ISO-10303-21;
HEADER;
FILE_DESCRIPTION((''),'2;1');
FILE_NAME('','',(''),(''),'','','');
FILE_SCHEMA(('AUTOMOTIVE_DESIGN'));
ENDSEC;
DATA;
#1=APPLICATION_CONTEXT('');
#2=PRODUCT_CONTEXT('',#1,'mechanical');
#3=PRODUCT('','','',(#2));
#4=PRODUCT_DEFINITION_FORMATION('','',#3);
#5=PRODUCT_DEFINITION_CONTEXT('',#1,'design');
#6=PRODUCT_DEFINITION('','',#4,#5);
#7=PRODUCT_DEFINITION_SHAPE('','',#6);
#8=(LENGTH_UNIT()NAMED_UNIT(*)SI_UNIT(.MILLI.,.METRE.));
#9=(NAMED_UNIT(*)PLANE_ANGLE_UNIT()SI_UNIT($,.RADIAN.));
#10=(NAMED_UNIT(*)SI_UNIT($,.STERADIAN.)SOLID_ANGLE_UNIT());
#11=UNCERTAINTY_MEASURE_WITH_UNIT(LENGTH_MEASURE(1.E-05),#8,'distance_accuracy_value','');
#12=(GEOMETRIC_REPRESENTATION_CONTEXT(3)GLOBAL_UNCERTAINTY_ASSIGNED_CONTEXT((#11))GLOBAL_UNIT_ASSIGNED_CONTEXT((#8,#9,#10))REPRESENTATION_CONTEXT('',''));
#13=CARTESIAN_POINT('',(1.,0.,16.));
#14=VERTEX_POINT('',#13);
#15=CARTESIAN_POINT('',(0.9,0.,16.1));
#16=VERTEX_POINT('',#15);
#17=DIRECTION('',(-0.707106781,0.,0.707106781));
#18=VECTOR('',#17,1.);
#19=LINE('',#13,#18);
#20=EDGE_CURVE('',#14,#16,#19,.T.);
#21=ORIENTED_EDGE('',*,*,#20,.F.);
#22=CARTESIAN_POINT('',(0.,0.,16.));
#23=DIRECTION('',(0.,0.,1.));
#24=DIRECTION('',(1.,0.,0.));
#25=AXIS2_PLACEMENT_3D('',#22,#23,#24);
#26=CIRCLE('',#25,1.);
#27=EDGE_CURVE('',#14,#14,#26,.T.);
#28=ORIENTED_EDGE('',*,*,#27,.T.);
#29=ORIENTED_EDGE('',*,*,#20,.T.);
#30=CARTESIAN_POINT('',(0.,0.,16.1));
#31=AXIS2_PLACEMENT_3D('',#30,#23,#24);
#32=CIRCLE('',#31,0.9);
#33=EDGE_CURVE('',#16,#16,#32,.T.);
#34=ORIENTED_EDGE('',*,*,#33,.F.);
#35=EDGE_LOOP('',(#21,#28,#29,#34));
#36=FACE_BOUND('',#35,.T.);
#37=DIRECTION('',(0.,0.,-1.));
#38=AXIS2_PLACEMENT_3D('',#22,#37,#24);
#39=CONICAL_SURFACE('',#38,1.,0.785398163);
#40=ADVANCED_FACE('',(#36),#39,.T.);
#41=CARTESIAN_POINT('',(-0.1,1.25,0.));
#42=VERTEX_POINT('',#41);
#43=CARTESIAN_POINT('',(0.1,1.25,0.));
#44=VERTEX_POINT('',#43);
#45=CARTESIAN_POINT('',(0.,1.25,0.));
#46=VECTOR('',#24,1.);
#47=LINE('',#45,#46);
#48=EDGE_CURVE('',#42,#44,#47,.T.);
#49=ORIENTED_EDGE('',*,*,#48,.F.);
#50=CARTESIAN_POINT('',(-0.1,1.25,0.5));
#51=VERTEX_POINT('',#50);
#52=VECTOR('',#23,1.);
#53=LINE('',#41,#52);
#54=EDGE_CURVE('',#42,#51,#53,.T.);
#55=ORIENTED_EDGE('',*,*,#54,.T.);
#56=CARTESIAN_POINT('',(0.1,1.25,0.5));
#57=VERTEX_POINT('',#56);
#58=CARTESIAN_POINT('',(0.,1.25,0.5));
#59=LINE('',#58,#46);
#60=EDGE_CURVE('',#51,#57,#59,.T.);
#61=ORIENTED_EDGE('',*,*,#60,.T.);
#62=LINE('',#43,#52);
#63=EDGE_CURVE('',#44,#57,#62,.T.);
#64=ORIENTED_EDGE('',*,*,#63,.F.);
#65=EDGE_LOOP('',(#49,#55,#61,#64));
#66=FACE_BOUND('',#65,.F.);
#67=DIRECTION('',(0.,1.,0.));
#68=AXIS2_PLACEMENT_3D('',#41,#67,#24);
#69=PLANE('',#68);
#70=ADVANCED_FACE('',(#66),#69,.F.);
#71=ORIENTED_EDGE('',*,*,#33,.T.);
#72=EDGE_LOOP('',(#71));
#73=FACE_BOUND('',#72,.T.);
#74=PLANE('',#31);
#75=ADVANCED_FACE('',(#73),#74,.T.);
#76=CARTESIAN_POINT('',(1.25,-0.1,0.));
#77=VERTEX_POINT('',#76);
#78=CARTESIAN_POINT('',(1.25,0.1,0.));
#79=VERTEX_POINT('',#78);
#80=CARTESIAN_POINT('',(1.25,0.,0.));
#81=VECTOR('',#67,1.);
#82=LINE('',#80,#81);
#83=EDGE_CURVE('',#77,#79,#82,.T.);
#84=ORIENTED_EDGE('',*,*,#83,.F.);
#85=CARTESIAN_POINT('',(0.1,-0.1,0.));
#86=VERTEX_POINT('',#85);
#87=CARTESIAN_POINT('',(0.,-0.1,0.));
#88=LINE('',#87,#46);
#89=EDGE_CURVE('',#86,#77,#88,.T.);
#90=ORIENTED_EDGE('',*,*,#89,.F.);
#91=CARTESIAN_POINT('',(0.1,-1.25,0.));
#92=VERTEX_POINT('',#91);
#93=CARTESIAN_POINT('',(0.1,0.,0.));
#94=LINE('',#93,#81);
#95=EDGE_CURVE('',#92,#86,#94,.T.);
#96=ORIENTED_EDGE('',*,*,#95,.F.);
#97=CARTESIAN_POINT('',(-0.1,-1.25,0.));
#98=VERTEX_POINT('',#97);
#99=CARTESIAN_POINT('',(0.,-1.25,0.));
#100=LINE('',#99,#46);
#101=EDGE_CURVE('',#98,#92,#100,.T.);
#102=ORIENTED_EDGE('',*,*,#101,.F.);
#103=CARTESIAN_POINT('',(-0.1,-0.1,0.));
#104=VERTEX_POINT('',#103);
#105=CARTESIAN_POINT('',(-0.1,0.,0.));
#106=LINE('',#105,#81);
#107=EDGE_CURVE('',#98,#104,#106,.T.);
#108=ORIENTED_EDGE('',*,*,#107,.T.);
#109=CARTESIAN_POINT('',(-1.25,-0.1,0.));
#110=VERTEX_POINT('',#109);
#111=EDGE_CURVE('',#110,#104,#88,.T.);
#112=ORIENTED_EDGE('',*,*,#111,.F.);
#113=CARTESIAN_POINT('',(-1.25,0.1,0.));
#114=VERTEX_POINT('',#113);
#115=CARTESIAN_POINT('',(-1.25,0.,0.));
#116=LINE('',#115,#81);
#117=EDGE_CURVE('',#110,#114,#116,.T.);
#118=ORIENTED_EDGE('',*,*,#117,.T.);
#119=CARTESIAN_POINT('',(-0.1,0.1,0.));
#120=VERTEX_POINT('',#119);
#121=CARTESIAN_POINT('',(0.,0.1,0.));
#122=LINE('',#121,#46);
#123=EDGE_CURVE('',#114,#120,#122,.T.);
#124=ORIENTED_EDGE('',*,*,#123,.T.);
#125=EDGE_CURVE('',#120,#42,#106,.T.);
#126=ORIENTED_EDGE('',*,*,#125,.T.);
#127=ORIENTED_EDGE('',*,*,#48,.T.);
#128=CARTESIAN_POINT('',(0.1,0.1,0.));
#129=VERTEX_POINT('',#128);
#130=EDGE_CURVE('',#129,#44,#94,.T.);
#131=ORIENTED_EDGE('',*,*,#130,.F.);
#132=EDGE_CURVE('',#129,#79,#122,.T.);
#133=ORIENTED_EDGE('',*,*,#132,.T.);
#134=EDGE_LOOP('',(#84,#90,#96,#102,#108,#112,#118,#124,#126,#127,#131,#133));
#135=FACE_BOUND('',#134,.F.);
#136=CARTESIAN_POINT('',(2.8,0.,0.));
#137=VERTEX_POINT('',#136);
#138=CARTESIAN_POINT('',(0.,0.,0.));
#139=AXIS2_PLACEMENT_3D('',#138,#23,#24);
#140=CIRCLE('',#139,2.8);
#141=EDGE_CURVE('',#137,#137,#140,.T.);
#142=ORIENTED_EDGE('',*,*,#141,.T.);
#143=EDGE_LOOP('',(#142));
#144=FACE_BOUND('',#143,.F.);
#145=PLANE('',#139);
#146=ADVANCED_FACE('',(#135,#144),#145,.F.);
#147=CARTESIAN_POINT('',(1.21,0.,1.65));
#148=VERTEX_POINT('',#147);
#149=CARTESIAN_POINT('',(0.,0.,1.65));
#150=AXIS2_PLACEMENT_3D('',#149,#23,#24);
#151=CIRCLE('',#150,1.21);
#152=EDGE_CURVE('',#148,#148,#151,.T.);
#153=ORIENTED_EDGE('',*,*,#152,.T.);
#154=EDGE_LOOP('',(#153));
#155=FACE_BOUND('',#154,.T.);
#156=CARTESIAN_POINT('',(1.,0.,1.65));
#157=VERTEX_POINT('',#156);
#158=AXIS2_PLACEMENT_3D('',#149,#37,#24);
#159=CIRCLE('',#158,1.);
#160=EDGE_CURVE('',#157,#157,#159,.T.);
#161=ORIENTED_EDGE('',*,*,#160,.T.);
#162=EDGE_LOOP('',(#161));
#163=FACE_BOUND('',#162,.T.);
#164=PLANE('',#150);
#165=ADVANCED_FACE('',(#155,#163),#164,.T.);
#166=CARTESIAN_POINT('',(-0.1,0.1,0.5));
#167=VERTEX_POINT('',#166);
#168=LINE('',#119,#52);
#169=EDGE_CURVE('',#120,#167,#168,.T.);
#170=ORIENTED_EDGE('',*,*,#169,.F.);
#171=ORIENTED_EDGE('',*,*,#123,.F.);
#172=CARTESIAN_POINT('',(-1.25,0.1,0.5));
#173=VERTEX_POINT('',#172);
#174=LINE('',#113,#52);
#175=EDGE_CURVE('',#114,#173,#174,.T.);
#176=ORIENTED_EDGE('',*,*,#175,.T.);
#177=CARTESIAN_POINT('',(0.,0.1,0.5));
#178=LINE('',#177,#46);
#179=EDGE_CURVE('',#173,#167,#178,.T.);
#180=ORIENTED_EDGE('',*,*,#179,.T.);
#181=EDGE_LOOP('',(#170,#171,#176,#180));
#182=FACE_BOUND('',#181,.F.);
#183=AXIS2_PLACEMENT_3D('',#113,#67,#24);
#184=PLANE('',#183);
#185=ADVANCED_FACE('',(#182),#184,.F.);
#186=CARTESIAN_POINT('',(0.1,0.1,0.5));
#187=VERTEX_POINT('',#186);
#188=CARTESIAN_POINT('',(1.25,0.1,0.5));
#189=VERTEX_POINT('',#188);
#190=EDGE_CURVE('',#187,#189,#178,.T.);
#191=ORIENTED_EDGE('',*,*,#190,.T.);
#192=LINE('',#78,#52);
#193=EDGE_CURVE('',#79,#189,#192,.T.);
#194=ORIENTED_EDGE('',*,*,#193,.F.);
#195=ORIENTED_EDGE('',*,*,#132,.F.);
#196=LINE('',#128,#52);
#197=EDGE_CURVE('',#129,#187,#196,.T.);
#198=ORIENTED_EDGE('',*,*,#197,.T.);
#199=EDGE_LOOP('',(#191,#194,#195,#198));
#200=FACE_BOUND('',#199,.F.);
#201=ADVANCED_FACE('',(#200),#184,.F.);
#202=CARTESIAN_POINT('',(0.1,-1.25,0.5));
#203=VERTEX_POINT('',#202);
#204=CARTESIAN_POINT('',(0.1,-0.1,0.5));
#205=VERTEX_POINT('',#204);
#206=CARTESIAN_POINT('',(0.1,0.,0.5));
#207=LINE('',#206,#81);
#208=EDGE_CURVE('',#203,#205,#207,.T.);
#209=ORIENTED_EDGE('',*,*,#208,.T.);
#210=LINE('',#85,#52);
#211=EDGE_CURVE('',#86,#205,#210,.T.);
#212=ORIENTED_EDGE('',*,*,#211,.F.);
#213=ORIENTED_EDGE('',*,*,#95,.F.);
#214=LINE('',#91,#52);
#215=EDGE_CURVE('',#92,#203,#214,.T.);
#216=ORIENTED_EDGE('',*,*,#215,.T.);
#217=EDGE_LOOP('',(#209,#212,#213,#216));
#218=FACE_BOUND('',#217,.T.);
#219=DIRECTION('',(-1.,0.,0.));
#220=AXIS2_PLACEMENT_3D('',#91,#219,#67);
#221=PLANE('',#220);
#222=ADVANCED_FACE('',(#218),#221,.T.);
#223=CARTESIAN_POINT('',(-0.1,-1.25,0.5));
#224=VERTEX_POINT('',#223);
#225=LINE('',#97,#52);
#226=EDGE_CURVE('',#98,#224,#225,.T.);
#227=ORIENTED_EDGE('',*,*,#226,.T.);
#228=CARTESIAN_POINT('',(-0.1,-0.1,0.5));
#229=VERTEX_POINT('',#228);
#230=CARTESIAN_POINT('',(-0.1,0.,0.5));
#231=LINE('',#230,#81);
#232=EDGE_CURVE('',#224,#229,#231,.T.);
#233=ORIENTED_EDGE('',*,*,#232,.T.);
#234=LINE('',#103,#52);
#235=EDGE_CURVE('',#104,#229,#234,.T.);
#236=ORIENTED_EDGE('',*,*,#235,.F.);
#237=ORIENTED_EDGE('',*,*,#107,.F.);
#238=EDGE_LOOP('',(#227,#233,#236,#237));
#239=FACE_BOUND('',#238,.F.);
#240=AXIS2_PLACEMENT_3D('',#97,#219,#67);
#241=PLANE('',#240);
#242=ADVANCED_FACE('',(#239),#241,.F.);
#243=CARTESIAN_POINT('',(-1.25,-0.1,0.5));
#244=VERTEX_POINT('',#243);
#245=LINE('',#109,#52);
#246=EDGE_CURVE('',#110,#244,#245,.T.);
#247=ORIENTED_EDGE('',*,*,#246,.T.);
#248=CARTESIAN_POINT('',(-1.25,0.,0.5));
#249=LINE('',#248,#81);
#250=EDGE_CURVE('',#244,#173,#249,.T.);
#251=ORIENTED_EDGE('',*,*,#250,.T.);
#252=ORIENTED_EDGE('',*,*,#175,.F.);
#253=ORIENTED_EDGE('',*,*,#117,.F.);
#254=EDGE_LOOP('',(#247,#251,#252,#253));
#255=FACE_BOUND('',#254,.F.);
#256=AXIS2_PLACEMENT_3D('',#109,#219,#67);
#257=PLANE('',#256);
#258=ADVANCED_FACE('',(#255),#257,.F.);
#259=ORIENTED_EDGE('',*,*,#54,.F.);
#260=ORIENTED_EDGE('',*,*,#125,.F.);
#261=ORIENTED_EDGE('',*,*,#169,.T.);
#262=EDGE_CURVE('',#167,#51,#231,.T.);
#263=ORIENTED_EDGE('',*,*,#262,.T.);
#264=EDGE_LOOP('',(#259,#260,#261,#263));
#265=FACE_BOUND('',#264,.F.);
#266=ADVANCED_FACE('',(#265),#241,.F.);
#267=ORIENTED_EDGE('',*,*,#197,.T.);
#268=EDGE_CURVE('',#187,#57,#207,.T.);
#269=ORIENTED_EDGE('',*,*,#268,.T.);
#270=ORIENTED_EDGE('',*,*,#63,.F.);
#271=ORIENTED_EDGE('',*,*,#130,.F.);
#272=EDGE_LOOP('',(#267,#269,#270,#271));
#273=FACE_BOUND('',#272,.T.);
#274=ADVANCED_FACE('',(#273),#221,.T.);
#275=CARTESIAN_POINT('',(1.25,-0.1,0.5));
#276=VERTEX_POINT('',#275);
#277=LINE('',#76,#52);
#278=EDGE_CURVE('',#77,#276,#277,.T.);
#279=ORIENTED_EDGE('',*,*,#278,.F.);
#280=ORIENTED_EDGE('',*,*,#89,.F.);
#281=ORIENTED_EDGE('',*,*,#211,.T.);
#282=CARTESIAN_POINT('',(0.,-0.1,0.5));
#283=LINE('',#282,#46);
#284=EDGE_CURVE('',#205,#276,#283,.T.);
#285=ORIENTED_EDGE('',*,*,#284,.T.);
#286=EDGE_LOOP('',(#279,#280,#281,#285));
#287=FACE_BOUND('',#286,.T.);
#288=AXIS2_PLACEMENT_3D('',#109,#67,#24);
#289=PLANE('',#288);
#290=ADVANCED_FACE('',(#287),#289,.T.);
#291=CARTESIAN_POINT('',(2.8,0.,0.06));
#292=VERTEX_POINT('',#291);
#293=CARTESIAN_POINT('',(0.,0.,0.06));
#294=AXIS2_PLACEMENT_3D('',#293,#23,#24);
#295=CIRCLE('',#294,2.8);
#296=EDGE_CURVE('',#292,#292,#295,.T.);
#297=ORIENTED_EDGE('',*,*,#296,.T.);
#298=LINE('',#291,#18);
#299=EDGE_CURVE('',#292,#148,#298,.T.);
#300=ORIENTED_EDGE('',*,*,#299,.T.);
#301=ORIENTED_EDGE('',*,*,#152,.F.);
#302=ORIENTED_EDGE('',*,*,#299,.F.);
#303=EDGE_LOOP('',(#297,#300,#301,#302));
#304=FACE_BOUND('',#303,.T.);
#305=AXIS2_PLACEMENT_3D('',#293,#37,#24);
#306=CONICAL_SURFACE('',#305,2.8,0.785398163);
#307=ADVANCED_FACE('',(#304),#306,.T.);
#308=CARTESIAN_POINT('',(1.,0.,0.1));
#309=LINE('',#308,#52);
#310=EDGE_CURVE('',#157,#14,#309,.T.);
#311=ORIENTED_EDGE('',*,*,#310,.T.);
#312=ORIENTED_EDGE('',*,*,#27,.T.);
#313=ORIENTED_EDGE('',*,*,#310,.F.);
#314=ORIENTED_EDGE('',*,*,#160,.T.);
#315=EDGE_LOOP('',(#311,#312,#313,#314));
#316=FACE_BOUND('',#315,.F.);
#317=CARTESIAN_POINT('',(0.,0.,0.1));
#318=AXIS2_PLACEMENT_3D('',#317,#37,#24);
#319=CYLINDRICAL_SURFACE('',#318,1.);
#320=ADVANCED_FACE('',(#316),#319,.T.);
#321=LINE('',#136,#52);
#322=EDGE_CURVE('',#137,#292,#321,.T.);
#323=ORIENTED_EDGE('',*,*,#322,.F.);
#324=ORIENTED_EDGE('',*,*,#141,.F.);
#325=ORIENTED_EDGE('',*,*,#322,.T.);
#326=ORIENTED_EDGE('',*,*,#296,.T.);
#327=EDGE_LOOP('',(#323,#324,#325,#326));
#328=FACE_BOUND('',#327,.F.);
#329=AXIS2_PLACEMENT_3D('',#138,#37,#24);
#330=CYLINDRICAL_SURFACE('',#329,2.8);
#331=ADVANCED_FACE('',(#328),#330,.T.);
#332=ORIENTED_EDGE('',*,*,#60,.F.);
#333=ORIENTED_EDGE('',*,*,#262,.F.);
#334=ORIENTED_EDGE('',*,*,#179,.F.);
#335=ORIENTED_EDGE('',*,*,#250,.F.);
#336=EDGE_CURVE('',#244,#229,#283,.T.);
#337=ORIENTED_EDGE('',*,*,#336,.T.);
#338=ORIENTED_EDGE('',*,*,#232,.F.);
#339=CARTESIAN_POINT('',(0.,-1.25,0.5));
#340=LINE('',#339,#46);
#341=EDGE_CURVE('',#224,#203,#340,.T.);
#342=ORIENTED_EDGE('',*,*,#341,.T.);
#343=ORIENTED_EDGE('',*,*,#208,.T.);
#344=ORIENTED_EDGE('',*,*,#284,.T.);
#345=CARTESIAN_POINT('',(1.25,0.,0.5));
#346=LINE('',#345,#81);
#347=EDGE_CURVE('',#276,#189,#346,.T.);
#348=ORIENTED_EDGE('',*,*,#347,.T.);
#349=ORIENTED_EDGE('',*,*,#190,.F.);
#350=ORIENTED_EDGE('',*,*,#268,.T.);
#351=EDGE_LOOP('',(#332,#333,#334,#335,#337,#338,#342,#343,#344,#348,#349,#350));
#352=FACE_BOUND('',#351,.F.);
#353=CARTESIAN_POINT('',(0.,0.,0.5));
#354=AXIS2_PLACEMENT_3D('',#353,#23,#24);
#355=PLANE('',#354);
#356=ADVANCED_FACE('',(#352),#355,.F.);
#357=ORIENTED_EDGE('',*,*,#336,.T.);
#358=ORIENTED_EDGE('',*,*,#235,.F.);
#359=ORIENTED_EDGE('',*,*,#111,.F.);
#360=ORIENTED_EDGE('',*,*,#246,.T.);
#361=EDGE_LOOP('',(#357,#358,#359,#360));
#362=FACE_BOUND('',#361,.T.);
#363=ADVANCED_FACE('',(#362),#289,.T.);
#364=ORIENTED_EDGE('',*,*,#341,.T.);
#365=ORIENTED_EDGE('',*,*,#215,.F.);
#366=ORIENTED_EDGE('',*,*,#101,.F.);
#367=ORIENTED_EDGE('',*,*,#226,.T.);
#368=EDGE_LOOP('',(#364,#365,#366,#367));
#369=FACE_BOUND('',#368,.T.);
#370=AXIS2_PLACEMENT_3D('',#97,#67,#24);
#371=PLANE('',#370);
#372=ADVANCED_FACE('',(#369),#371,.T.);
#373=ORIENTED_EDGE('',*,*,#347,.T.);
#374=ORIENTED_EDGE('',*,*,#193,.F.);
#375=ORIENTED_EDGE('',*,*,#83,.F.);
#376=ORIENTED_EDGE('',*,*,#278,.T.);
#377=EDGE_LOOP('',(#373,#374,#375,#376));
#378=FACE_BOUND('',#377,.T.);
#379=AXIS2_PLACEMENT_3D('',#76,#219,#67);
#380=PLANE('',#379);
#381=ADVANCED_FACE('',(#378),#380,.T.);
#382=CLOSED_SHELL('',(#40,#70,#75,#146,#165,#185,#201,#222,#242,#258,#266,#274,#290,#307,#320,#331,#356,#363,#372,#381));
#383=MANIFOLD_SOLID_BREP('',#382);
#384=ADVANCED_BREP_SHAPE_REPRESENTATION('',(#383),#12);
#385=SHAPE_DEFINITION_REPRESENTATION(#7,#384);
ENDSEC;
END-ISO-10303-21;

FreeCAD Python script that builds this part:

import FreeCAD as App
import Part
import Sketcher
from FreeCAD import Vector
Q = App.Units.Quantity


def edges_at(feature, points):
    """Names of the edges that pass closest to the given points."""
    edges = feature.Shape.Edges
    near = lambda p: min(range(len(edges)), key=lambda i: edges[i].distToShape(Part.Vertex(*p))[0])
    return sorted({f"Edge{near(p) + 1}" for p in points})

doc = App.newDocument("Part")
body = doc.addObject("PartDesign::Body", "Body")

sketch1 = body.newObject("Sketcher::SketchObject", "Sketch")
sketch1.AttachmentSupport = (doc.getObject("XY_Plane"), [""])
sketch1.MapMode = "FlatFace"
sketch1.addGeometry(Part.LineSegment(Vector(-0.1, 1.25, 0), Vector(-0.1, -1.25, 0)), False)
sketch1.addGeometry(Part.LineSegment(Vector(-0.1, -1.25, 0), Vector(0.1, -1.25, 0)), False)
sketch1.addGeometry(Part.LineSegment(Vector(0.1, -1.25, 0), Vector(0.1, 1.25, 0)), False)
sketch1.addGeometry(Part.LineSegment(Vector(0.1, 1.25, 0), Vector(-0.1, 1.25, 0)), False)
sketch1.addConstraint(Sketcher.Constraint("Coincident", 0, 2, 1, 1))
sketch1.addConstraint(Sketcher.Constraint("Coincident", 1, 2, 2, 1))
sketch1.addConstraint(Sketcher.Constraint("Coincident", 2, 2, 3, 1))
sketch1.addConstraint(Sketcher.Constraint("Coincident", 3, 2, 0, 1))
sketch1.addConstraint(Sketcher.Constraint("Vertical", 0))
sketch1.addConstraint(Sketcher.Constraint("Horizontal", 1))
sketch1.addConstraint(Sketcher.Constraint("Vertical", 2))
sketch1.addConstraint(Sketcher.Constraint("Horizontal", 3))
sketch1.addConstraint(Sketcher.Constraint("Symmetric", 0, 2, 2, 2, -1, 1))
sketch1.addConstraint(Sketcher.Constraint("DistanceX", 1, 1, 1, 2, Q("0.2 mm")))
sketch1.addConstraint(Sketcher.Constraint("DistanceY", 0, 2, 0, 1, Q("2.5 mm")))
pad1 = body.newObject("PartDesign::Pad", "Pad")
pad1.Profile = sketch1
pad1.Length = 0.5
body2 = doc.addObject("PartDesign::Body", "Body001")

sketch2 = body2.newObject("Sketcher::SketchObject", "Sketch001")
sketch2.AttachmentSupport = (doc.getObject("XY_Plane001"), [""])
sketch2.MapMode = "FlatFace"
sketch2.addGeometry(Part.LineSegment(Vector(-1.25, 0.1, 0), Vector(-1.25, -0.1, 0)), False)
sketch2.addGeometry(Part.LineSegment(Vector(-1.25, -0.1, 0), Vector(1.25, -0.1, 0)), False)
sketch2.addGeometry(Part.LineSegment(Vector(1.25, -0.1, 0), Vector(1.25, 0.1, 0)), False)
sketch2.addGeometry(Part.LineSegment(Vector(1.25, 0.1, 0), Vector(-1.25, 0.1, 0)), False)
sketch2.addConstraint(Sketcher.Constraint("Coincident", 0, 2, 1, 1))
sketch2.addConstraint(Sketcher.Constraint("Coincident", 1, 2, 2, 1))
sketch2.addConstraint(Sketcher.Constraint("Coincident", 2, 2, 3, 1))
sketch2.addConstraint(Sketcher.Constraint("Coincident", 3, 2, 0, 1))
sketch2.addConstraint(Sketcher.Constraint("Vertical", 0))
sketch2.addConstraint(Sketcher.Constraint("Horizontal", 1))
sketch2.addConstraint(Sketcher.Constraint("Vertical", 2))
sketch2.addConstraint(Sketcher.Constraint("Horizontal", 3))
sketch2.addConstraint(Sketcher.Constraint("Symmetric", 0, 2, 2, 2, -1, 1))
sketch2.addConstraint(Sketcher.Constraint("DistanceX", 1, 1, 1, 2, Q("2.5 mm")))
sketch2.addConstraint(Sketcher.Constraint("DistanceY", 0, 2, 0, 1, Q("0.2 mm")))
pad2 = body2.newObject("PartDesign::Pad", "Pad001")
pad2.Profile = sketch2
pad2.Length = 0.5
doc.recompute()

boolean = body2.newObject("PartDesign::Boolean", "Boolean")
boolean.Type = "Fuse"
boolean.addObjects([body])
body3 = doc.addObject("PartDesign::Body", "Body002")

sketch3 = body3.newObject("Sketcher::SketchObject", "Sketch002")
sketch3.AttachmentSupport = (doc.getObject("XY_Plane002"), [""])
sketch3.MapMode = "FlatFace"
sketch3.addGeometry(Part.Circle(Vector(0, 0, 0), Vector(0, 0, 1), 2.8), False)
sketch3.addConstraint(Sketcher.Constraint("Coincident", 0, 3, -1, 1))
sketch3.addConstraint(Sketcher.Constraint("Diameter", 0, Q("5.6 mm")))
pad3 = body3.newObject("PartDesign::Pad", "Pad002")
pad3.Profile = sketch3
pad3.Length = 1.65
body4 = doc.addObject("PartDesign::Body", "Body003")

sketch4 = body4.newObject("Sketcher::SketchObject", "Sketch003")
sketch4.AttachmentSupport = (doc.getObject("XY_Plane003"), [""])
sketch4.MapMode = "FlatFace"
sketch4.AttachmentOffset = App.Placement(Vector(0, 0, 0.1), App.Rotation())
sketch4.addGeometry(Part.Circle(Vector(0, 0, 0), Vector(0, 0, 1), 1), False)
sketch4.addConstraint(Sketcher.Constraint("Coincident", 0, 3, -1, 1))
sketch4.addConstraint(Sketcher.Constraint("Diameter", 0, Q("2 mm")))
pad4 = body4.newObject("PartDesign::Pad", "Pad003")
pad4.Profile = sketch4
pad4.Length = 16
doc.recompute()

boolean2 = body4.newObject("PartDesign::Boolean", "Boolean001")
boolean2.Type = "Fuse"
boolean2.addObjects([body3])
doc.recompute()

boolean3 = body4.newObject("PartDesign::Boolean", "Boolean002")
boolean3.Type = "Cut"
boolean3.addObjects([body2])
doc.recompute()

chamfer = body4.newObject("PartDesign::Chamfer", "Chamfer")
chamfer.Base = (boolean3, edges_at(boolean3, [(-2.8, 0, 1.65)]))
chamfer.Size = 1.59
doc.recompute()

chamfer2 = body4.newObject("PartDesign::Chamfer", "Chamfer001")
chamfer2.Base = (chamfer, edges_at(chamfer, [(-1, 0, 16.1)]))
chamfer2.Size = 0.1

doc.recompute()
